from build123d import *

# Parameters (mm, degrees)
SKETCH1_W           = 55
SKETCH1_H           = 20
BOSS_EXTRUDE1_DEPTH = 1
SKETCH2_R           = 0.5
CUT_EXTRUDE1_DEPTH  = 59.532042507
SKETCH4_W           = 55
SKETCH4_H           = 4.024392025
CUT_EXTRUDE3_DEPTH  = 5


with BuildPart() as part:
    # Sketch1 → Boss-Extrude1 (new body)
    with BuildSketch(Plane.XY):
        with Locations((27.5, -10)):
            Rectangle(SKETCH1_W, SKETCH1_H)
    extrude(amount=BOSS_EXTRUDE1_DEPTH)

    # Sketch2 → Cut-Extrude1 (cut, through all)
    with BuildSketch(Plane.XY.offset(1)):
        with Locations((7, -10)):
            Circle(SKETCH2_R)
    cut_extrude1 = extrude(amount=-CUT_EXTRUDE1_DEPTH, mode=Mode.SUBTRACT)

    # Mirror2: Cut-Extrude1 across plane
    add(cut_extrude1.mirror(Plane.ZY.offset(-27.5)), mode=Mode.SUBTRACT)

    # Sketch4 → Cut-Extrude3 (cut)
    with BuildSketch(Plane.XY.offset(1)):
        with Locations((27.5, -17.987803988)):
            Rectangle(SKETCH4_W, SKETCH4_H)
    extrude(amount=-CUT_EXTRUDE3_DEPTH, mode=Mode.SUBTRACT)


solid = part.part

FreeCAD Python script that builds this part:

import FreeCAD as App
import Part
import Sketcher
from FreeCAD import Vector


def add_polygon(sketch, points):
    """Adds a closed chain of lines whose ends are joined by coincident constraints."""
    first, n = sketch.GeometryCount, len(points)
    for a, b in zip(points, points[1:] + points[:1]):
        sketch.addGeometry(Part.LineSegment(App.Vector(*a, 0), App.Vector(*b, 0)), False)
    for i in range(n):
        sketch.addConstraint(Sketcher.Constraint("Coincident", first + i, 2, first + (i + 1) % n, 1))

doc = App.newDocument("Part")
params = doc.addObject("Spreadsheet::Sheet", "Params")
for row, (alias, value) in enumerate([
    ("sketch1_width", "55 mm"),
    ("sketch1_height", "20 mm"),
    ("pad1_length", "1 mm"),
    ("sketch2_diameter", "1 mm"),
    ("sketch3_width", "55 mm"),
    ("pocket2_length", "5 mm"),
], start=1):
    params.set(f"A{row}", alias)
    params.set(f"B{row}", "=" + value)
    params.setAlias(f"B{row}", alias)

body = doc.addObject("PartDesign::Body", "Body")

# Sketch on XY plane
sketch1 = body.newObject("Sketcher::SketchObject", "Sketch")
sketch1.AttachmentSupport = (doc.getObject("XY_Plane"), [""])
sketch1.MapMode = "FlatFace"
add_polygon(sketch1, [(0, 0), (0, -20), (55, -20), (55, 0)])  # lines 0-3
sketch1.addConstraint([
    Sketcher.Constraint("Vertical", 0),
    Sketcher.Constraint("Horizontal", 1),
    Sketcher.Constraint("Vertical", 2),
    Sketcher.Constraint("Horizontal", 3),
    Sketcher.Constraint("Coincident", 3, 2, -1, 1),
    Sketcher.Constraint("DistanceX", 1, 1, 1, 2, 55.0),
    Sketcher.Constraint("DistanceY", 0, 2, 0, 1, 20.0),
])
sketch1.setExpression("Constraints[9]", "Params.sketch1_width")
sketch1.setExpression("Constraints[10]", "Params.sketch1_height")
pad1 = body.newObject("PartDesign::Pad", "Pad")
pad1.Profile = sketch1
pad1.setExpression("Length", "Params.pad1_length")

# Sketch on XY plane
sketch2 = body.newObject("Sketcher::SketchObject", "Sketch001")
sketch2.AttachmentSupport = (doc.getObject("XY_Plane"), [""])
sketch2.MapMode = "FlatFace"
sketch2.AttachmentOffset = App.Placement(Vector(0, 0, 1), App.Rotation())
sketch2.addGeometry(Part.Circle(Vector(7, -10, 0), Vector(0, 0, 1), 0.5), False)
sketch2.addConstraint([
    Sketcher.Constraint("Diameter", 0, 1.0),
    Sketcher.Constraint("DistanceX", -1, 1, 0, 3, 7.0),
    Sketcher.Constraint("DistanceY", 0, 3, -1, 1, 10.0),
])
sketch2.setExpression("Constraints[0]", "Params.sketch2_diameter")
pocket1 = body.newObject("PartDesign::Pocket", "Pocket")
pocket1.Profile = sketch2
pocket1.Type = "ThroughAll"
doc.recompute()

datumplane = body.newObject("PartDesign::Plane", "DatumPlane")
datumplane.AttachmentSupport = (doc.getObject("YZ_Plane"), [""])
datumplane.MapMode = "FlatFace"
datumplane.AttachmentOffset = App.Placement(Vector(0, 0, 27.5), App.Rotation())
mirrored = body.newObject("PartDesign::Mirrored", "Mirrored")
mirrored.Originals = [pocket1]
mirrored.MirrorPlane = (datumplane, [""])
body.Tip = mirrored

# Sketch on XY plane
sketch3 = body.newObject("Sketcher::SketchObject", "Sketch002")
sketch3.AttachmentSupport = (doc.getObject("XY_Plane"), [""])
sketch3.MapMode = "FlatFace"
sketch3.AttachmentOffset = App.Placement(Vector(0, 0, 1), App.Rotation())
add_polygon(sketch3, [(0, -15.975608), (0, -20), (55, -20), (55, -15.975608)])  # lines 0-3
sketch3.addConstraint([
    Sketcher.Constraint("Vertical", 0),
    Sketcher.Constraint("Horizontal", 1),
    Sketcher.Constraint("Vertical", 2),
    Sketcher.Constraint("Horizontal", 3),
    Sketcher.Constraint("PointOnObject", 0, 2, -2),
    Sketcher.Constraint("DistanceX", 1, 1, 1, 2, 55.0),
    Sketcher.Constraint("DistanceY", 0, 2, -1, 1, 20.0),
    Sketcher.Constraint("DistanceY", 0, 2, 0, 1, 4.024392),
])
sketch3.setExpression("Constraints[9]", "Params.sketch3_width")
pocket2 = body.newObject("PartDesign::Pocket", "Pocket001")
pocket2.Profile = sketch3
pocket2.setExpression("Length", "Params.pocket2_length")

doc.recompute()
